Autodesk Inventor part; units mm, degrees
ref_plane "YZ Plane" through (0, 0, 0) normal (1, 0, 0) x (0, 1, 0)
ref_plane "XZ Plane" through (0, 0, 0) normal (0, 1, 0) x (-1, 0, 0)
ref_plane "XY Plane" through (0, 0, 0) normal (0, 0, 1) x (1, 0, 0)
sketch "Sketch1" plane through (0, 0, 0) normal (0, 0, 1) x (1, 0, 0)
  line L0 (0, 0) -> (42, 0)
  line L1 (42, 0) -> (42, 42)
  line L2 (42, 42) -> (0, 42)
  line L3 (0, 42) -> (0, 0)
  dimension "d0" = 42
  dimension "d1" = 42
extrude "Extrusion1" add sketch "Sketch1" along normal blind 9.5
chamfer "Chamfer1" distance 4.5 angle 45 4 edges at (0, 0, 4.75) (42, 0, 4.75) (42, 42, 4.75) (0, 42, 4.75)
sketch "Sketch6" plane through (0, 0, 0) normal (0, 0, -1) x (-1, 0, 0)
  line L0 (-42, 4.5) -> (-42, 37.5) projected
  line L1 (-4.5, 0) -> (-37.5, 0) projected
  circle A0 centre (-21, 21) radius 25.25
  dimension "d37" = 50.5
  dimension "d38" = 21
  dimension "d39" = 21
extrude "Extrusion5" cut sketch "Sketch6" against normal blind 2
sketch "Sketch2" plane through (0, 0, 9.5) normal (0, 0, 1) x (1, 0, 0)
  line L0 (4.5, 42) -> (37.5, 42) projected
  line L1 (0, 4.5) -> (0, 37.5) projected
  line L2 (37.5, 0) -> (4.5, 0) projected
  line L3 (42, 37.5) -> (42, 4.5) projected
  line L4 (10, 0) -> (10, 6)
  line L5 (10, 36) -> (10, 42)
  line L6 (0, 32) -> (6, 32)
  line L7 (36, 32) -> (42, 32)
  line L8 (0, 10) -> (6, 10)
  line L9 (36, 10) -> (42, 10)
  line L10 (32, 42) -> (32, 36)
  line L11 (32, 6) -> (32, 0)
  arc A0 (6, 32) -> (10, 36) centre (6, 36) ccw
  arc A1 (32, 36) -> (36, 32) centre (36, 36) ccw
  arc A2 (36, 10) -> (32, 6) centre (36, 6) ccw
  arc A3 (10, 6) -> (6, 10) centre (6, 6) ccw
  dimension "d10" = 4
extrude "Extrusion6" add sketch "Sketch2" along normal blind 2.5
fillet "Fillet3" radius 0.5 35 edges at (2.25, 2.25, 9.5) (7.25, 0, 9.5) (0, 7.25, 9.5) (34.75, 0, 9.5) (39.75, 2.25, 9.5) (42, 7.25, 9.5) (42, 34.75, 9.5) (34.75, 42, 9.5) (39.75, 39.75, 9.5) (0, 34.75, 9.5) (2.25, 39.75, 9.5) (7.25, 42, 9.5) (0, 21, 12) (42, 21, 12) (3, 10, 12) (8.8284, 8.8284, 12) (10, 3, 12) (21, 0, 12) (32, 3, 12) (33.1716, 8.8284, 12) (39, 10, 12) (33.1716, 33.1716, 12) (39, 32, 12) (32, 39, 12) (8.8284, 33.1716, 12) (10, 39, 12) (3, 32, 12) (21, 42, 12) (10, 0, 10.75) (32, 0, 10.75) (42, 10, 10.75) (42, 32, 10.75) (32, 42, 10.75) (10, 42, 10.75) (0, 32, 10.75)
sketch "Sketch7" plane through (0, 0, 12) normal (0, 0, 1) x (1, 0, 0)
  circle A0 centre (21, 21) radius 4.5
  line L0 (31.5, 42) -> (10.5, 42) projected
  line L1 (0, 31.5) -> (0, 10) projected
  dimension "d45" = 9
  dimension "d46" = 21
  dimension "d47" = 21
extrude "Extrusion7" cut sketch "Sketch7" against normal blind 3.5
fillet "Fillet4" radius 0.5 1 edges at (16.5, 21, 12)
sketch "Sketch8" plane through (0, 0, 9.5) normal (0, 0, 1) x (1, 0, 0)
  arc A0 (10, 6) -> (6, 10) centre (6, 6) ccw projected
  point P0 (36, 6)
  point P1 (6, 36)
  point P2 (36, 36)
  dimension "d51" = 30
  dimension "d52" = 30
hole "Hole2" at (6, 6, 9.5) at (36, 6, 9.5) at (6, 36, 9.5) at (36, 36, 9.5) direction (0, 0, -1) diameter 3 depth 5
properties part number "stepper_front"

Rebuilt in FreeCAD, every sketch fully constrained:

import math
import FreeCAD as App
import Part
import Sketcher

V = App.Vector
Q = App.Units.Quantity


def edges_at(feature, points):
    """Names of the edges that pass closest to the given points."""
    edges = feature.Shape.Edges
    near = lambda p: min(range(len(edges)), key=lambda i: edges[i].distToShape(Part.Vertex(*p))[0])
    return sorted({f"Edge{near(p) + 1}" for p in points})

doc = App.newDocument("Part")
body = doc.addObject("PartDesign::Body", "Body")

sketch1 = body.newObject("Sketcher::SketchObject", "Sketch")
sketch1.AttachmentSupport = (doc.getObject("XY_Plane"), [""])
sketch1.MapMode = "FlatFace"
sketch1.addGeometry(Part.LineSegment(V(0, 42, 0), V(0, 0, 0)), False)
sketch1.addGeometry(Part.LineSegment(V(0, 0, 0), V(42, 0, 0)), False)
sketch1.addGeometry(Part.LineSegment(V(42, 0, 0), V(42, 42, 0)), False)
sketch1.addGeometry(Part.LineSegment(V(42, 42, 0), V(0, 42, 0)), False)
sketch1.addConstraint(Sketcher.Constraint("Coincident", 0, 2, 1, 1))
sketch1.addConstraint(Sketcher.Constraint("Coincident", 1, 2, 2, 1))
sketch1.addConstraint(Sketcher.Constraint("Coincident", 2, 2, 3, 1))
sketch1.addConstraint(Sketcher.Constraint("Coincident", 3, 2, 0, 1))
sketch1.addConstraint(Sketcher.Constraint("Vertical", 0))
sketch1.addConstraint(Sketcher.Constraint("Horizontal", 1))
sketch1.addConstraint(Sketcher.Constraint("Vertical", 2))
sketch1.addConstraint(Sketcher.Constraint("Horizontal", 3))
sketch1.addConstraint(Sketcher.Constraint("Coincident", 0, 2, -1, 1))
sketch1.addConstraint(Sketcher.Constraint("Equal", 3, 0))
sketch1.addConstraint(Sketcher.Constraint("DistanceX", 1, 1, 1, 2, Q("42 mm")))
pad1 = body.newObject("PartDesign::Pad", "Pad")
pad1.Profile = sketch1
pad1.Length = 9.5
doc.recompute()

chamfer = body.newObject("PartDesign::Chamfer", "Chamfer")
chamfer.Base = (pad1, edges_at(pad1, [
    (0, 0, 4.75),
    (42, 0, 4.75),
    (42, 42, 4.75),
    (0, 42, 4.75),
]))
chamfer.Size = 4.5

sketch2 = body.newObject("Sketcher::SketchObject", "Sketch001")
sketch2.AttachmentSupport = (doc.getObject("XY_Plane"), [""])
sketch2.MapMode = "FlatFace"
sketch2.addGeometry(Part.Circle(V(21, 21, 0), V(0, 0, 1), 25), False)
sketch2.addConstraint(Sketcher.Constraint("Diameter", 0, Q("50.5 mm")))
sketch2.addConstraint(Sketcher.Constraint("DistanceX", -1, 1, 0, 3, Q("21 mm")))
sketch2.addConstraint(Sketcher.Constraint("DistanceY", -1, 1, 0, 3, Q("21 mm")))
pocket1 = body.newObject("PartDesign::Pocket", "Pocket")
pocket1.Profile = sketch2
pocket1.Length = 2
pocket1.Reversed = True

sketch3 = body.newObject("Sketcher::SketchObject", "Sketch002")
sketch3.AttachmentSupport = (doc.getObject("XY_Plane"), [""])
sketch3.MapMode = "FlatFace"
sketch3.AttachmentOffset = App.Placement(V(0, 0, 9.5), App.Rotation())
sketch3.addGeometry(Part.LineSegment(V(32, 42, 0), V(10, 42, 0)), False)
sketch3.addGeometry(Part.LineSegment(V(10, 42, 0), V(10, 36, 0)), False)
sketch3.addGeometry(Part.ArcOfCircle(Part.Circle(V(6, 36, 0), V(0, 0, 1), 4), math.radians(-90), math.radians(0)), False)
sketch3.addGeometry(Part.LineSegment(V(6, 32, 0), V(0, 32, 0)), False)
sketch3.addGeometry(Part.LineSegment(V(0, 32, 0), V(0, 10, 0)), False)
sketch3.addGeometry(Part.LineSegment(V(0, 10, 0), V(6, 10, 0)), False)
sketch3.addGeometry(Part.ArcOfCircle(Part.Circle(V(6, 6, 0), V(0, 0, 1), 4), math.radians(0), math.radians(90)), False)
sketch3.addGeometry(Part.LineSegment(V(10, 6, 0), V(10, 0, 0)), False)
sketch3.addGeometry(Part.LineSegment(V(10, 0, 0), V(32, 0, 0)), False)
sketch3.addGeometry(Part.LineSegment(V(32, 0, 0), V(32, 6, 0)), False)
sketch3.addGeometry(Part.ArcOfCircle(Part.Circle(V(36, 6, 0), V(0, 0, 1), 4), math.radians(90), math.radians(180)), False)
sketch3.addGeometry(Part.LineSegment(V(36, 10, 0), V(42, 10, 0)), False)
sketch3.addGeometry(Part.LineSegment(V(42, 10, 0), V(42, 32, 0)), False)
sketch3.addGeometry(Part.LineSegment(V(42, 32, 0), V(36, 32, 0)), False)
sketch3.addGeometry(Part.ArcOfCircle(Part.Circle(V(36, 36, 0), V(0, 0, 1), 4), math.radians(180), math.radians(270)), False)
sketch3.addGeometry(Part.LineSegment(V(32, 36, 0), V(32, 42, 0)), False)
sketch3.addConstraint(Sketcher.Constraint("Coincident", 0, 2, 1, 1))
sketch3.addConstraint(Sketcher.Constraint("Tangent", 1, 2, 2, 2))
sketch3.addConstraint(Sketcher.Constraint("Tangent", 2, 1, 3, 1))
sketch3.addConstraint(Sketcher.Constraint("Coincident", 3, 2, 4, 1))
sketch3.addConstraint(Sketcher.Constraint("Coincident", 4, 2, 5, 1))
sketch3.addConstraint(Sketcher.Constraint("Tangent", 5, 2, 6, 2))
sketch3.addConstraint(Sketcher.Constraint("Tangent", 6, 1, 7, 1))
sketch3.addConstraint(Sketcher.Constraint("Coincident", 7, 2, 8, 1))
sketch3.addConstraint(Sketcher.Constraint("Coincident", 8, 2, 9, 1))
sketch3.addConstraint(Sketcher.Constraint("Tangent", 9, 2, 10, 2))
sketch3.addConstraint(Sketcher.Constraint("Tangent", 10, 1, 11, 1))
sketch3.addConstraint(Sketcher.Constraint("Coincident", 11, 2, 12, 1))
sketch3.addConstraint(Sketcher.Constraint("Coincident", 12, 2, 13, 1))
sketch3.addConstraint(Sketcher.Constraint("Tangent", 13, 2, 14, 2))
sketch3.addConstraint(Sketcher.Constraint("Tangent", 14, 1, 15, 1))
sketch3.addConstraint(Sketcher.Constraint("Coincident", 15, 2, 0, 1))
sketch3.addConstraint(Sketcher.Constraint("Horizontal", 0))
sketch3.addConstraint(Sketcher.Constraint("Vertical", 1))
sketch3.addConstraint(Sketcher.Constraint("Horizontal", 3))
sketch3.addConstraint(Sketcher.Constraint("Vertical", 4))
sketch3.addConstraint(Sketcher.Constraint("Horizontal", 5))
sketch3.addConstraint(Sketcher.Constraint("Vertical", 7))
sketch3.addConstraint(Sketcher.Constraint("Horizontal", 8))
sketch3.addConstraint(Sketcher.Constraint("Vertical", 9))
sketch3.addConstraint(Sketcher.Constraint("Horizontal", 11))
sketch3.addConstraint(Sketcher.Constraint("Vertical", 12))
sketch3.addConstraint(Sketcher.Constraint("Horizontal", 13))
sketch3.addConstraint(Sketcher.Constraint("Vertical", 15))
sketch3.addConstraint(Sketcher.Constraint("Equal", 2, 6))
sketch3.addConstraint(Sketcher.Constraint("Equal", 6, 10))
sketch3.addConstraint(Sketcher.Constraint("Equal", 10, 14))
sketch3.addConstraint(Sketcher.Constraint("PointOnObject", 3, 2, -2))
sketch3.addConstraint(Sketcher.Constraint("PointOnObject", 7, 2, -1))
sketch3.addConstraint(Sketcher.Constraint("Horizontal", 6, 3, 10, 3))
sketch3.addConstraint(Sketcher.Constraint("Horizontal", 2, 3, 14, 3))
sketch3.addConstraint(Sketcher.Constraint("Vertical", 2, 3, 6, 3))
sketch3.addConstraint(Sketcher.Constraint("Vertical", 10, 3, 14, 3))
sketch3.addConstraint(Sketcher.Constraint("Equal", 5, 11))
sketch3.addConstraint(Sketcher.Constraint("Equal", 13, 1))
sketch3.addConstraint(Sketcher.Constraint("Equal", 8, 4))
sketch3.addConstraint(Sketcher.Constraint("Equal", 1, 7))
sketch3.addConstraint(Sketcher.Constraint("Radius", 2, Q("4 mm")))
sketch3.addConstraint(Sketcher.Constraint("DistanceX", 0, 2, 0, 1, Q("22 mm")))
sketch3.addConstraint(Sketcher.Constraint("DistanceX", 3, 2, 3, 1, Q("6 mm")))
pad2 = body.newObject("PartDesign::Pad", "Pad001")
pad2.Profile = sketch3
pad2.Length = 2.5
doc.recompute()

fillet = body.newObject("PartDesign::Fillet", "Fillet")
fillet.Base = (pad2, edges_at(pad2, [
    (2.25, 2.25, 9.5),
    (7.25, 0, 9.5),
    (0, 7.25, 9.5),
    (34.75, 0, 9.5),
    (39.75, 2.25, 9.5),
    (42, 7.25, 9.5),
    (42, 34.75, 9.5),
    (34.75, 42, 9.5),
    (39.75, 39.75, 9.5),
    (0, 34.75, 9.5),
    (2.25, 39.75, 9.5),
    (7.25, 42, 9.5),
    (0, 21, 12),
    (42, 21, 12),
    (3, 10, 12),
    (8.828, 8.828, 12),
    (10, 3, 12),
    (21, 0, 12),
    (32, 3, 12),
    (33.172, 8.828, 12),
    (39, 10, 12),
    (33.172, 33.172, 12),
    (39, 32, 12),
    (32, 39, 12),
    (8.828, 33.172, 12),
    (10, 39, 12),
    (3, 32, 12),
    (21, 42, 12),
    (10, 0, 10.75),
    (32, 0, 10.75),
    (42, 10, 10.75),
    (42, 32, 10.75),
    (32, 42, 10.75),
    (10, 42, 10.75),
    (0, 32, 10.75),
]))
fillet.Radius = 0.5

sketch4 = body.newObject("Sketcher::SketchObject", "Sketch003")
sketch4.AttachmentSupport = (doc.getObject("XY_Plane"), [""])
sketch4.MapMode = "FlatFace"
sketch4.AttachmentOffset = App.Placement(V(0, 0, 12), App.Rotation())
sketch4.addGeometry(Part.Circle(V(21, 21, 0), V(0, 0, 1), 4.5), False)
sketch4.addConstraint(Sketcher.Constraint("Diameter", 0, Q("9 mm")))
sketch4.addConstraint(Sketcher.Constraint("DistanceX", -1, 1, 0, 3, Q("21 mm")))
sketch4.addConstraint(Sketcher.Constraint("DistanceY", -1, 1, 0, 3, Q("21 mm")))
pocket2 = body.newObject("PartDesign::Pocket", "Pocket001")
pocket2.Profile = sketch4
pocket2.Length = 3.5
doc.recompute()

fillet2 = body.newObject("PartDesign::Fillet", "Fillet001")
fillet2.Base = (pocket2, edges_at(pocket2, [(16.5, 21, 12)]))
fillet2.Radius = 0.5

sketch5 = body.newObject("Sketcher::SketchObject", "Sketch004")
sketch5.AttachmentSupport = (doc.getObject("XY_Plane"), [""])
sketch5.MapMode = "FlatFace"
sketch5.AttachmentOffset = App.Placement(V(0, 0, 9.5), App.Rotation())
sketch5.addGeometry(Part.Circle(V(6, 6, 0), V(0, 0, 1), 1.5), False)
sketch5.addGeometry(Part.Circle(V(36, 6, 0), V(0, 0, 1), 1.5), False)
sketch5.addGeometry(Part.Circle(V(6, 36, 0), V(0, 0, 1), 1.5), False)
sketch5.addGeometry(Part.Circle(V(36, 36, 0), V(0, 0, 1), 1.5), False)
sketch5.addConstraint(Sketcher.Constraint("Equal", 0, 1))
sketch5.addConstraint(Sketcher.Constraint("Equal", 1, 2))
sketch5.addConstraint(Sketcher.Constraint("Equal", 2, 3))
sketch5.addConstraint(Sketcher.Constraint("Horizontal", 0, 3, 1, 3))
sketch5.addConstraint(Sketcher.Constraint("Horizontal", 2, 3, 3, 3))
sketch5.addConstraint(Sketcher.Constraint("Vertical", 0, 3, 2, 3))
sketch5.addConstraint(Sketcher.Constraint("Vertical", 1, 3, 3, 3))
sketch5.addConstraint(Sketcher.Constraint("Diameter", 0, Q("3 mm")))
sketch5.addConstraint(Sketcher.Constraint("DistanceX", -1, 1, 0, 3, Q("6 mm")))
sketch5.addConstraint(Sketcher.Constraint("DistanceY", -1, 1, 0, 3, Q("6 mm")))
sketch5.addConstraint(Sketcher.Constraint("DistanceX", -1, 1, 1, 3, Q("36 mm")))
sketch5.addConstraint(Sketcher.Constraint("DistanceY", -1, 1, 2, 3, Q("36 mm")))
doc.recompute()
hole = body.newObject("PartDesign::Hole", "Hole")
hole.Profile = sketch5
hole.ThreadType = "None"
hole.Diameter = 3
hole.DepthType = "Dimension"
hole.Depth = 5
hole.DrillPoint = "Flat"

doc.recompute()
